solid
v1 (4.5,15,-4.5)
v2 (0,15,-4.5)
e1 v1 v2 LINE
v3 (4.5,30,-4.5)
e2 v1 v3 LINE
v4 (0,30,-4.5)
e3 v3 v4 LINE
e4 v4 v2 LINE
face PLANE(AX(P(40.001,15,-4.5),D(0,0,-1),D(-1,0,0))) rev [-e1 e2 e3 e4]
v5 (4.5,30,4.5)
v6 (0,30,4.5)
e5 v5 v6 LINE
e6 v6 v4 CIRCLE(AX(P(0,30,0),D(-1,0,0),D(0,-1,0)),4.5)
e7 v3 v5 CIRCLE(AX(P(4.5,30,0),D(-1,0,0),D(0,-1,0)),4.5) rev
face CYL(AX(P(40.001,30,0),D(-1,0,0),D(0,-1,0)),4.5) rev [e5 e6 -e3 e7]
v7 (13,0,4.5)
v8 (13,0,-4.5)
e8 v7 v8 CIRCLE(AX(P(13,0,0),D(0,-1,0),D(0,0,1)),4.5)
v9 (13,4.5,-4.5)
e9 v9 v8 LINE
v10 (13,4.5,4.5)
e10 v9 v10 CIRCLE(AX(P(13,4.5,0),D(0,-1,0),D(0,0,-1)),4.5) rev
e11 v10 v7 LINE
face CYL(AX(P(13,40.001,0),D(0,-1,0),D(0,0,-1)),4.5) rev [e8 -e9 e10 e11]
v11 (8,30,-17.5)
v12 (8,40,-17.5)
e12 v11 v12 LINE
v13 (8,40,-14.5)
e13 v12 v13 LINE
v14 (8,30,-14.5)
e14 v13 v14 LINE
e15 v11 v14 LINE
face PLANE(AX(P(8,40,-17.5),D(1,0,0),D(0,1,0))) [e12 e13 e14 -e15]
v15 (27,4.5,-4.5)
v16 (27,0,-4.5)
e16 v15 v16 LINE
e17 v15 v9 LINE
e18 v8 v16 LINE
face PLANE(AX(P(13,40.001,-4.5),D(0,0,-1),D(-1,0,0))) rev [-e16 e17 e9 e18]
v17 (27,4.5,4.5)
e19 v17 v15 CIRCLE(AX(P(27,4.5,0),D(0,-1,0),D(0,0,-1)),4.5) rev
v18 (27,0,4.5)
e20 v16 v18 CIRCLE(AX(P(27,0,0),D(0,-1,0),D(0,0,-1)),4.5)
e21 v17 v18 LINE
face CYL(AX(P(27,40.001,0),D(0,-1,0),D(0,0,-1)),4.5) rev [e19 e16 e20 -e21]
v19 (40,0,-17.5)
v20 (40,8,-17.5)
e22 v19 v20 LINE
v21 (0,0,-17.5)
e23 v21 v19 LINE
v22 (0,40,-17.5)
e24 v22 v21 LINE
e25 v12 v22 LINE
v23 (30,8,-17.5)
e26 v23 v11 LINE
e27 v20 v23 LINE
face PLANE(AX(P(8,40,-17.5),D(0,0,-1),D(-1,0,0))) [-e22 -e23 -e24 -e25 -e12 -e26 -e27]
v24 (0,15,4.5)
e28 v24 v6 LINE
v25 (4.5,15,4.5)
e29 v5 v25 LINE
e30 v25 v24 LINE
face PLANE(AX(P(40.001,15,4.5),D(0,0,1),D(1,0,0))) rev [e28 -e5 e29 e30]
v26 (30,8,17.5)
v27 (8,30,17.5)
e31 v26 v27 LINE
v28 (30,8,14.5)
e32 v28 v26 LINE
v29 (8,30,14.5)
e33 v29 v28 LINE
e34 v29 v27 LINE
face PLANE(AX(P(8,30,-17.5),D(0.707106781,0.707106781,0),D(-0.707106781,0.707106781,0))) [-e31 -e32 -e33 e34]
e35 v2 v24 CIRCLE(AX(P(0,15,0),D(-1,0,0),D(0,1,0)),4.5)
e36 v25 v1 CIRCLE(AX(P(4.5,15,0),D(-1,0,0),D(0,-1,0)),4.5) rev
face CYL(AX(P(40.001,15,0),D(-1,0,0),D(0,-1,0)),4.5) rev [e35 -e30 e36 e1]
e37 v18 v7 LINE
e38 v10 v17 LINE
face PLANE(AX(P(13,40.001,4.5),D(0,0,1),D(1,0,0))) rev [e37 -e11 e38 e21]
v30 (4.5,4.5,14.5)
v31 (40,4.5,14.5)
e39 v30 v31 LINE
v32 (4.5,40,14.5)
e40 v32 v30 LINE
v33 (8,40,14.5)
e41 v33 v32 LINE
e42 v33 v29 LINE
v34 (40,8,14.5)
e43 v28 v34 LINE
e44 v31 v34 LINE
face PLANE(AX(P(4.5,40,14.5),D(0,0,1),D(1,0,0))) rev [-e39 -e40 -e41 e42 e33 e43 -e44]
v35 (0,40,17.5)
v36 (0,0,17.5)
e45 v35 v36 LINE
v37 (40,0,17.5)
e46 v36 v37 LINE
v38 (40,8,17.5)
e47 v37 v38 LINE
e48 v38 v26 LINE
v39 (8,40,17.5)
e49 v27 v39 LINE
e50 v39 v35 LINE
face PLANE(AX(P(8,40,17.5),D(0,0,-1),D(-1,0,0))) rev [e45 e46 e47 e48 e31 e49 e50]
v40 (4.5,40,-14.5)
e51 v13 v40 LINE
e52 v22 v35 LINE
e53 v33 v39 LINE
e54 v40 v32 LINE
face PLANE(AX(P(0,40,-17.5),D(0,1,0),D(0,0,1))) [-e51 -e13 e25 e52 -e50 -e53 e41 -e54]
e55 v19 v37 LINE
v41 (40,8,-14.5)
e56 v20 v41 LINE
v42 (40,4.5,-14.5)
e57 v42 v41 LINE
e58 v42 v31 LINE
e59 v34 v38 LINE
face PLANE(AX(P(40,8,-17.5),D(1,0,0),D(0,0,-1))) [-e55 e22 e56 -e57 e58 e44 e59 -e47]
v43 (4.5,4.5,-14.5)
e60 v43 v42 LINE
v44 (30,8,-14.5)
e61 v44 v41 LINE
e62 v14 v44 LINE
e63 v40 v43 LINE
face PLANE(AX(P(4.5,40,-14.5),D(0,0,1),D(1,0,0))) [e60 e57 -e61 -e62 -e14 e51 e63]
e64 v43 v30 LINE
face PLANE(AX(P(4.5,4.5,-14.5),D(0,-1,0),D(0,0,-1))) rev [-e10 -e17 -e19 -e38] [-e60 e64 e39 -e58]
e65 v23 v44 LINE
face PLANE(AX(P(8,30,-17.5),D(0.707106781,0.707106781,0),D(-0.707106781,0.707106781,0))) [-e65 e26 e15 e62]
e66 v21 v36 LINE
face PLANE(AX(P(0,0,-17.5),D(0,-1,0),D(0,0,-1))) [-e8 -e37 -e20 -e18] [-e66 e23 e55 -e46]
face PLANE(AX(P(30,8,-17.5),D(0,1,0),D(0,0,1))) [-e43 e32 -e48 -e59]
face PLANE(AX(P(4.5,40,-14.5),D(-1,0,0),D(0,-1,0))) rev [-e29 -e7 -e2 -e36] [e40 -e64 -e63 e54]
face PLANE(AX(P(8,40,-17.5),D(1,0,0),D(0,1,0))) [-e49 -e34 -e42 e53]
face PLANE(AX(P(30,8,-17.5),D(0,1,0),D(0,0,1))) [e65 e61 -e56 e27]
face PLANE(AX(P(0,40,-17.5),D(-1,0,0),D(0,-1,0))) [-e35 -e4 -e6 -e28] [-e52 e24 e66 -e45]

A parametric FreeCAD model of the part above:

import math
import FreeCAD as App
import Part
import Sketcher

V = App.Vector
Q = App.Units.Quantity

doc = App.newDocument("Part")
body = doc.addObject("PartDesign::Body", "Body")

# Sketch on XY plane
sketch1 = body.newObject("Sketcher::SketchObject", "Sketch")
sketch1.AttachmentSupport = (doc.getObject("XY_Plane"), [""])
sketch1.MapMode = "FlatFace"
sketch1.addGeometry(Part.LineSegment(V(0, 40, 0), V(0, 0, 0)), False)
sketch1.addGeometry(Part.LineSegment(V(0, 0, 0), V(40, 0, 0)), False)
sketch1.addGeometry(Part.LineSegment(V(40, 0, 0), V(40, 8, 0)), False)
sketch1.addGeometry(Part.LineSegment(V(40, 8, 0), V(30, 8, 0)), False)
sketch1.addGeometry(Part.LineSegment(V(30, 8, 0), V(8, 30, 0)), False)
sketch1.addGeometry(Part.LineSegment(V(8, 30, 0), V(8, 40, 0)), False)
sketch1.addGeometry(Part.LineSegment(V(8, 40, 0), V(0, 40, 0)), False)
sketch1.addConstraint(Sketcher.Constraint("Coincident", 0, 2, 1, 1))
sketch1.addConstraint(Sketcher.Constraint("Coincident", 1, 2, 2, 1))
sketch1.addConstraint(Sketcher.Constraint("Coincident", 2, 2, 3, 1))
sketch1.addConstraint(Sketcher.Constraint("Coincident", 3, 2, 4, 1))
sketch1.addConstraint(Sketcher.Constraint("Coincident", 4, 2, 5, 1))
sketch1.addConstraint(Sketcher.Constraint("Coincident", 5, 2, 6, 1))
sketch1.addConstraint(Sketcher.Constraint("Coincident", 6, 2, 0, 1))
sketch1.addConstraint(Sketcher.Constraint("Vertical", 0))
sketch1.addConstraint(Sketcher.Constraint("Horizontal", 1))
sketch1.addConstraint(Sketcher.Constraint("Vertical", 2))
sketch1.addConstraint(Sketcher.Constraint("Horizontal", 3))
sketch1.addConstraint(Sketcher.Constraint("Vertical", 5))
sketch1.addConstraint(Sketcher.Constraint("Horizontal", 6))
sketch1.addConstraint(Sketcher.Constraint("Coincident", 0, 2, -1, 1))
sketch1.addConstraint(Sketcher.Constraint("Equal", 1, 0))
sketch1.addConstraint(Sketcher.Constraint("Equal", 6, 2))
sketch1.addConstraint(Sketcher.Constraint("Equal", 3, 5))
sketch1.addConstraint(Sketcher.Constraint("DistanceX", 1, 1, 1, 2, Q("40 mm")))
sketch1.addConstraint(Sketcher.Constraint("DistanceX", 3, 2, 3, 1, Q("10 mm")))
sketch1.addConstraint(Sketcher.Constraint("DistanceX", 6, 2, 6, 1, Q("8 mm")))
pad1 = body.newObject("PartDesign::Pad", "Pad")
pad1.Profile = sketch1
pad1.Length = 35
pad1.Midplane = True

# Sketch on XY plane
sketch2 = body.newObject("Sketcher::SketchObject", "Sketch001")
sketch2.AttachmentSupport = (doc.getObject("XY_Plane"), [""])
sketch2.MapMode = "FlatFace"
sketch2.addGeometry(Part.LineSegment(V(4.5, 40, 0), V(4.5, 4.5, 0)), False)
sketch2.addGeometry(Part.LineSegment(V(4.5, 4.5, 0), V(40, 4.5, 0)), False)
sketch2.addGeometry(Part.LineSegment(V(40, 4.5, 0), V(40, 8, 0)), False)
sketch2.addGeometry(Part.LineSegment(V(40, 8, 0), V(8, 40, 0)), False)
sketch2.addGeometry(Part.LineSegment(V(8, 40, 0), V(4.5, 40, 0)), False)
sketch2.addConstraint(Sketcher.Constraint("Coincident", 0, 2, 1, 1))
sketch2.addConstraint(Sketcher.Constraint("Coincident", 1, 2, 2, 1))
sketch2.addConstraint(Sketcher.Constraint("Coincident", 2, 2, 3, 1))
sketch2.addConstraint(Sketcher.Constraint("Coincident", 3, 2, 4, 1))
sketch2.addConstraint(Sketcher.Constraint("Coincident", 4, 2, 0, 1))
sketch2.addConstraint(Sketcher.Constraint("Vertical", 0))
sketch2.addConstraint(Sketcher.Constraint("Horizontal", 1))
sketch2.addConstraint(Sketcher.Constraint("Vertical", 2))
sketch2.addConstraint(Sketcher.Constraint("Horizontal", 4))
sketch2.addConstraint(Sketcher.Constraint("Equal", 1, 0))
sketch2.addConstraint(Sketcher.Constraint("Equal", 4, 2))
sketch2.addConstraint(Sketcher.Constraint("DistanceX", 1, 1, 1, 2, Q("35.5 mm")))
sketch2.addConstraint(Sketcher.Constraint("DistanceX", 4, 2, 4, 1, Q("3.5 mm")))
sketch2.addConstraint(Sketcher.Constraint("DistanceX", -1, 1, 1, 2, Q("40 mm")))
sketch2.addConstraint(Sketcher.Constraint("DistanceY", -1, 1, 2, 2, Q("8 mm")))
pocket1 = body.newObject("PartDesign::Pocket", "Pocket")
pocket1.Profile = sketch2
pocket1.Length = 29
pocket1.Midplane = True

# Sketch on XZ plane
sketch3 = body.newObject("Sketcher::SketchObject", "Sketch002")
sketch3.AttachmentSupport = (doc.getObject("XZ_Plane"), [""])
sketch3.MapMode = "FlatFace"
sketch3.addGeometry(Part.LineSegment(V(13, -4.5, 0), V(27, -4.5, 0)), False)
sketch3.addGeometry(Part.ArcOfCircle(Part.Circle(V(27, 0, 0), V(0, 0, 1), 4.5), math.radians(-90), math.radians(90)), False)
sketch3.addGeometry(Part.LineSegment(V(27, 4.5, 0), V(13, 4.5, 0)), False)
sketch3.addGeometry(Part.ArcOfCircle(Part.Circle(V(13, 0, 0), V(0, 0, 1), 4.5), math.radians(90), math.radians(270)), False)
sketch3.addConstraint(Sketcher.Constraint("Tangent", 0, 2, 1, 1))
sketch3.addConstraint(Sketcher.Constraint("Tangent", 1, 2, 2, 1))
sketch3.addConstraint(Sketcher.Constraint("Tangent", 2, 2, 3, 1))
sketch3.addConstraint(Sketcher.Constraint("Tangent", 3, 2, 0, 1))
sketch3.addConstraint(Sketcher.Constraint("Horizontal", 0))
sketch3.addConstraint(Sketcher.Constraint("Horizontal", 2))
sketch3.addConstraint(Sketcher.Constraint("PointOnObject", 1, 3, -1))
sketch3.addConstraint(Sketcher.Constraint("Radius", 1, Q("4.5 mm")))
sketch3.addConstraint(Sketcher.Constraint("DistanceX", 0, 1, 0, 2, Q("14 mm")))
sketch3.addConstraint(Sketcher.Constraint("DistanceX", -1, 1, 1, 3, Q("27 mm")))
pocket2 = body.newObject("PartDesign::Pocket", "Pocket001")
pocket2.Profile = sketch3
pocket2.Type = "UpToFirst"

# Sketch on YZ plane
sketch4 = body.newObject("Sketcher::SketchObject", "Sketch003")
sketch4.AttachmentSupport = (doc.getObject("YZ_Plane"), [""])
sketch4.MapMode = "FlatFace"
sketch4.addGeometry(Part.LineSegment(V(15, 4.5, 0), V(30, 4.5, 0)), False)
sketch4.addGeometry(Part.ArcOfCircle(Part.Circle(V(30, 0, 0), V(0, 0, 1), 4.5), math.radians(-90), math.radians(90)), False)
sketch4.addGeometry(Part.LineSegment(V(30, -4.5, 0), V(15, -4.5, 0)), False)
sketch4.addGeometry(Part.ArcOfCircle(Part.Circle(V(15, 0, 0), V(0, 0, 1), 4.5), math.radians(90), math.radians(270)), False)
sketch4.addConstraint(Sketcher.Constraint("Tangent", 0, 2, 1, 2))
sketch4.addConstraint(Sketcher.Constraint("Tangent", 1, 1, 2, 1))
sketch4.addConstraint(Sketcher.Constraint("Tangent", 2, 2, 3, 2))
sketch4.addConstraint(Sketcher.Constraint("Tangent", 3, 1, 0, 1))
sketch4.addConstraint(Sketcher.Constraint("Horizontal", 0))
sketch4.addConstraint(Sketcher.Constraint("Horizontal", 2))
sketch4.addConstraint(Sketcher.Constraint("PointOnObject", 1, 3, -1))
sketch4.addConstraint(Sketcher.Constraint("Radius", 1, Q("4.5 mm")))
sketch4.addConstraint(Sketcher.Constraint("DistanceX", 0, 1, 0, 2, Q("15 mm")))
sketch4.addConstraint(Sketcher.Constraint("DistanceX", -1, 1, 1, 3, Q("30 mm")))
pocket3 = body.newObject("PartDesign::Pocket", "Pocket002")
pocket3.Profile = sketch4
pocket3.Type = "UpToFirst"
pocket3.Reversed = True

doc.recompute()
